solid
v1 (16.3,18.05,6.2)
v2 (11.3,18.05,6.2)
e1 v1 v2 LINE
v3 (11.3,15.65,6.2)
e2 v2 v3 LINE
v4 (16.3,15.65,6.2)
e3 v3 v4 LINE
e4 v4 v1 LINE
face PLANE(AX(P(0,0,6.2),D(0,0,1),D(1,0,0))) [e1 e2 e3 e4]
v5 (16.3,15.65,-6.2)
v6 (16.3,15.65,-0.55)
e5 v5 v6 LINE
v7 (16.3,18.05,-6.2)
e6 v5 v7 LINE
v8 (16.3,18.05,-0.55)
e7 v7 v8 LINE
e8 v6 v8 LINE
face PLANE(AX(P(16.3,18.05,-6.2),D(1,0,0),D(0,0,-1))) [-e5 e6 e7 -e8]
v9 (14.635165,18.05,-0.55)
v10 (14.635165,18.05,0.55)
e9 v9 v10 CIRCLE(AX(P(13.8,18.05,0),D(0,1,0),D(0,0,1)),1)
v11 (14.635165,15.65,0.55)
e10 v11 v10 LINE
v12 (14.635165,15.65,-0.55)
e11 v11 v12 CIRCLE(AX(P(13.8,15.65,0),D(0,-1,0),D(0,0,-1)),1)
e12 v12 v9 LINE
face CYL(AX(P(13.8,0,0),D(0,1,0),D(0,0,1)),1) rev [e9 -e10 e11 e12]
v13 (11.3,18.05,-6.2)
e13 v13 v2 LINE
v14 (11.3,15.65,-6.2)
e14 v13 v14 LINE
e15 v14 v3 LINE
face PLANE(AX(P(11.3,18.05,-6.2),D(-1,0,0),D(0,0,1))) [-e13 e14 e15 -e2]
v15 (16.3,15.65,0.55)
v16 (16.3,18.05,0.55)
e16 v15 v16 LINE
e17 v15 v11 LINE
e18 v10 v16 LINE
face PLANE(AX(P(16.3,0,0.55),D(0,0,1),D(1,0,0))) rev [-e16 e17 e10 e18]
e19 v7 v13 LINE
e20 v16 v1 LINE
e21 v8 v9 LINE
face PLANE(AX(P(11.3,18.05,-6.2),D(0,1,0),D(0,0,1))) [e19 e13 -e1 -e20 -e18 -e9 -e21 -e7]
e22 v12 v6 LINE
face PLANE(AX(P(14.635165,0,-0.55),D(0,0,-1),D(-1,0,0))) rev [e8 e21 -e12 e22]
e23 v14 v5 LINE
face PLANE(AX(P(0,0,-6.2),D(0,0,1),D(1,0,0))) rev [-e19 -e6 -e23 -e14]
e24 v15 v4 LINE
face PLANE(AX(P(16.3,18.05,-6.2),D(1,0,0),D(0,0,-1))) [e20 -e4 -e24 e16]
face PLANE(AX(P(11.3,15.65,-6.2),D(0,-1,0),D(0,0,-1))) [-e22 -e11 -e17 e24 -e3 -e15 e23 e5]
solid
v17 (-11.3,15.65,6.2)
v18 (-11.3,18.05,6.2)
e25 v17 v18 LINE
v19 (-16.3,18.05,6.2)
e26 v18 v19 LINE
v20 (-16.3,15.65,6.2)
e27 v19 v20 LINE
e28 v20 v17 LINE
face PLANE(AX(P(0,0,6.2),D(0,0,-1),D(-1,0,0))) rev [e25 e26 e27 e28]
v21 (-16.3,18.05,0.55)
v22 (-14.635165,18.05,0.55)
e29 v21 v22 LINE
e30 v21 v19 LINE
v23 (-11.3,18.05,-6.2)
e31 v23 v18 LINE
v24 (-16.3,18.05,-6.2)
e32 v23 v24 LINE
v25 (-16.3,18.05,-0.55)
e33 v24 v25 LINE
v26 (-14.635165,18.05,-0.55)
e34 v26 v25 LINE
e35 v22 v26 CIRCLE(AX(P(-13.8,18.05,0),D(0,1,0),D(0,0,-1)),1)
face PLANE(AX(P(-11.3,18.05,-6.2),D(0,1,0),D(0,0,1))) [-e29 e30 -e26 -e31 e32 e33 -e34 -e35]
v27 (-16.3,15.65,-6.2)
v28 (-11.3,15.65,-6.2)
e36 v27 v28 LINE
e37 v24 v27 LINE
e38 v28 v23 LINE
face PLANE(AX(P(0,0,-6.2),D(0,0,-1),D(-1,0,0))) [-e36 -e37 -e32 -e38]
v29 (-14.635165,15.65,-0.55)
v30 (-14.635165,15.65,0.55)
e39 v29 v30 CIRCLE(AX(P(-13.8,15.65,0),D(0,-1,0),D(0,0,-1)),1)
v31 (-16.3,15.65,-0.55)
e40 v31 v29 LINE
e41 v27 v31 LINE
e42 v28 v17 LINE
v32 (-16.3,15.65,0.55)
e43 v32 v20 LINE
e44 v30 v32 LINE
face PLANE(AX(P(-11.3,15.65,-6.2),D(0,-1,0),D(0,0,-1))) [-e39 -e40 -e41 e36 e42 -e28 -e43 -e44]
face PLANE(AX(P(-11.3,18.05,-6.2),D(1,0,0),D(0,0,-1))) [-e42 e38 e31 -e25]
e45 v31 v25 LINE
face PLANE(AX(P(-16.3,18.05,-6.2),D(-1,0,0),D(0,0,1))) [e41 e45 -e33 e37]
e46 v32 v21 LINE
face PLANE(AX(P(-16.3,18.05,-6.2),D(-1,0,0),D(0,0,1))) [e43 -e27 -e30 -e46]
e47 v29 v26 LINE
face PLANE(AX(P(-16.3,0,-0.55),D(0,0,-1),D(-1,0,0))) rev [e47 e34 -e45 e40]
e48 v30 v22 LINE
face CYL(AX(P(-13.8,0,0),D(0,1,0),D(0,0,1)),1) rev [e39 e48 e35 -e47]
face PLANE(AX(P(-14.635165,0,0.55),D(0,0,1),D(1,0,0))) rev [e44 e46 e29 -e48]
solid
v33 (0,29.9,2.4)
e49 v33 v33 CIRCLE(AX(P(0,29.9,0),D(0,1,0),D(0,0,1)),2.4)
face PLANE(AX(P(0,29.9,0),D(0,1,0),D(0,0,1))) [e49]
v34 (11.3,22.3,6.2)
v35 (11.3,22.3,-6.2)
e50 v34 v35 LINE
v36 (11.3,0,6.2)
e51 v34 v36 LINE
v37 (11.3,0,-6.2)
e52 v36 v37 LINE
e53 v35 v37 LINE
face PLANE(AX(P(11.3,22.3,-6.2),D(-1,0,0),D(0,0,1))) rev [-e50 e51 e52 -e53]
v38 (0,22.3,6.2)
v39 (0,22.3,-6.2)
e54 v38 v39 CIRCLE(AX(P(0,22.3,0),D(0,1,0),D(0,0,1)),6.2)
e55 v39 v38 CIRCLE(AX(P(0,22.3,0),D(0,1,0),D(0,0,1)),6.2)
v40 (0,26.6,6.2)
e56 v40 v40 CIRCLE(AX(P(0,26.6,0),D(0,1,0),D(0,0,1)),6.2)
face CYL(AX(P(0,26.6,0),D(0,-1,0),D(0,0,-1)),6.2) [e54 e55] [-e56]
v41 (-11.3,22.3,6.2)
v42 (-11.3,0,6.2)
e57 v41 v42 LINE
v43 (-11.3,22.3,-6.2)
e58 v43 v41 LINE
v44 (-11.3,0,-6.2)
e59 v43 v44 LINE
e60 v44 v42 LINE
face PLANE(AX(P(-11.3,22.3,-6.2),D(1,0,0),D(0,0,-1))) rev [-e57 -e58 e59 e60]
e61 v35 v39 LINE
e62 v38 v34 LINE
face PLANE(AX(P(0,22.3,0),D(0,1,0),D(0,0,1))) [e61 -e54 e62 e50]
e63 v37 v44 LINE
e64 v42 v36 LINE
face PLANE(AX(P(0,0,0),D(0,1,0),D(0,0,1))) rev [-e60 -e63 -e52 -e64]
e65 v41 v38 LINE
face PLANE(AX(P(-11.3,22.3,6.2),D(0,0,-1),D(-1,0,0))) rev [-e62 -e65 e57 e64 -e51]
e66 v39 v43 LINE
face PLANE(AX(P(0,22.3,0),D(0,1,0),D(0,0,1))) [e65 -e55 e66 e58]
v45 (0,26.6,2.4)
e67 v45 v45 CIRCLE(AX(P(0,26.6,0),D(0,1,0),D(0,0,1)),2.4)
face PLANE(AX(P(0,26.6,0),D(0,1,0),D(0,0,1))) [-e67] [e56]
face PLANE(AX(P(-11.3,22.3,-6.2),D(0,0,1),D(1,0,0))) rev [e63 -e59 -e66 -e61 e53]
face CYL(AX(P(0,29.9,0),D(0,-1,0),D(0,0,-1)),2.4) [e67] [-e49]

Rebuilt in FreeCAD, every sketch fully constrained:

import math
import FreeCAD as App
import Part
import Sketcher

doc = App.newDocument("Part")
body = doc.addObject("PartDesign::Body", "Body")

sketch1 = doc.addObject("Sketcher::SketchObject", "Sketch")
body.addObject(sketch1)
sketch1.AttachmentSupport = (doc.XZ_Plane, [""])
sketch1.MapMode = "FlatFace"
sketch1.addGeometry([
    Part.LineSegment(App.Vector(-11, -6, 0), App.Vector(-11, 6, 0)),
    Part.LineSegment(App.Vector(-11, 6, 0), App.Vector(11, 6, 0)),
    Part.LineSegment(App.Vector(11, 6, 0), App.Vector(11, -6, 0)),
    Part.LineSegment(App.Vector(11, -6, 0), App.Vector(-11, -6, 0)),
], False)
sketch1.addConstraint([
    Sketcher.Constraint("Coincident", 0, 2, 1, 1),
    Sketcher.Constraint("Coincident", 1, 2, 2, 1),
    Sketcher.Constraint("Coincident", 2, 2, 3, 1),
    Sketcher.Constraint("Coincident", 3, 2, 0, 1),
    Sketcher.Constraint("Vertical", 0),
    Sketcher.Constraint("Horizontal", 1),
    Sketcher.Constraint("Vertical", 2),
    Sketcher.Constraint("Horizontal", 3),
    Sketcher.Constraint("Symmetric", 0, 2, 2, 2, -1, 1),
    Sketcher.Constraint("DistanceX", 1, 1, 1, 2, 22.6),
    Sketcher.Constraint("DistanceY", 0, 1, 0, 2, 12.4),
])
pad1 = doc.addObject("PartDesign::Pad", "Pad")
body.addObject(pad1)
pad1.Profile = sketch1
pad1.Length = 22.3
pad1.Reversed = True

sketch2 = doc.addObject("Sketcher::SketchObject", "Sketch001")
body.addObject(sketch2)
sketch2.AttachmentSupport = (doc.XZ_Plane, [""])
sketch2.MapMode = "FlatFace"
sketch2.AttachmentOffset = App.Placement(App.Vector(0, 0, -22.3), App.Rotation())
sketch2.addGeometry(Part.Circle(App.Vector(0, 0, 0), App.Vector(0, 0, 1), 6), False)
sketch2.addConstraint([
    Sketcher.Constraint("Coincident", 0, 3, -1, 1),
    Sketcher.Constraint("Diameter", 0, 12.4),
])
pad2 = doc.addObject("PartDesign::Pad", "Pad001")
body.addObject(pad2)
pad2.Profile = sketch2
pad2.Length = 4.3
pad2.Reversed = True

sketch3 = doc.addObject("Sketcher::SketchObject", "Sketch002")
body.addObject(sketch3)
sketch3.AttachmentSupport = (doc.XZ_Plane, [""])
sketch3.MapMode = "FlatFace"
sketch3.AttachmentOffset = App.Placement(App.Vector(0, 0, -26.6), App.Rotation())
sketch3.addGeometry(Part.Circle(App.Vector(0, 0, 0), App.Vector(0, 0, 1), 2.4), False)
sketch3.addConstraint([
    Sketcher.Constraint("Coincident", 0, 3, -1, 1),
    Sketcher.Constraint("Diameter", 0, 4.8),
])
pad3 = doc.addObject("PartDesign::Pad", "Pad002")
body.addObject(pad3)
pad3.Profile = sketch3
pad3.Length = 3.3
pad3.Reversed = True
body2 = doc.addObject("PartDesign::Body", "Body001")

sketch4 = doc.addObject("Sketcher::SketchObject", "Sketch003")
body2.addObject(sketch4)
sketch4.AttachmentSupport = (doc.getObject("XY_Plane001"), [""])
sketch4.MapMode = "FlatFace"
sketch4.AttachmentOffset = App.Placement(App.Vector(0, 0, 6.2), App.Rotation())
sketch4.addGeometry([
    Part.LineSegment(App.Vector(11.3, 18.1, 0), App.Vector(11.3, 15.7, 0)),
    Part.LineSegment(App.Vector(11.3, 15.7, 0), App.Vector(16.3, 15.7, 0)),
    Part.LineSegment(App.Vector(16.3, 15.7, 0), App.Vector(16.3, 18.1, 0)),
    Part.LineSegment(App.Vector(16.3, 18.1, 0), App.Vector(11.3, 18.1, 0)),
], False)
sketch4.addConstraint([
    Sketcher.Constraint("Coincident", 0, 2, 1, 1),
    Sketcher.Constraint("Coincident", 1, 2, 2, 1),
    Sketcher.Constraint("Coincident", 2, 2, 3, 1),
    Sketcher.Constraint("Coincident", 3, 2, 0, 1),
    Sketcher.Constraint("Vertical", 0),
    Sketcher.Constraint("Horizontal", 1),
    Sketcher.Constraint("Vertical", 2),
    Sketcher.Constraint("Horizontal", 3),
    Sketcher.Constraint("DistanceX", 1, 1, 1, 2, 5.0),
    Sketcher.Constraint("DistanceY", 0, 2, 0, 1, 2.4),
    Sketcher.Constraint("DistanceX", -1, 1, 0, 2, 11.3),
    Sketcher.Constraint("DistanceY", -1, 1, 0, 2, 15.65),
])
pad4 = doc.addObject("PartDesign::Pad", "Pad003")
body2.addObject(pad4)
pad4.Profile = sketch4
pad4.Length = 12.4
pad4.Reversed = True
body3 = doc.addObject("PartDesign::Body", "Body002")

sketch5 = doc.addObject("Sketcher::SketchObject", "Sketch004")
body3.addObject(sketch5)
sketch5.AttachmentSupport = (doc.getObject("XY_Plane002"), [""])
sketch5.MapMode = "FlatFace"
sketch5.AttachmentOffset = App.Placement(App.Vector(0, 0, 6.2), App.Rotation())
sketch5.addGeometry([
    Part.LineSegment(App.Vector(-16.3, 18.1, 0), App.Vector(-16.3, 15.7, 0)),
    Part.LineSegment(App.Vector(-16.3, 15.7, 0), App.Vector(-11.3, 15.7, 0)),
    Part.LineSegment(App.Vector(-11.3, 15.7, 0), App.Vector(-11.3, 18.1, 0)),
    Part.LineSegment(App.Vector(-11.3, 18.1, 0), App.Vector(-16.3, 18.1, 0)),
], False)
sketch5.addConstraint([
    Sketcher.Constraint("Coincident", 0, 2, 1, 1),
    Sketcher.Constraint("Coincident", 1, 2, 2, 1),
    Sketcher.Constraint("Coincident", 2, 2, 3, 1),
    Sketcher.Constraint("Coincident", 3, 2, 0, 1),
    Sketcher.Constraint("Vertical", 0),
    Sketcher.Constraint("Horizontal", 1),
    Sketcher.Constraint("Vertical", 2),
    Sketcher.Constraint("Horizontal", 3),
    Sketcher.Constraint("DistanceX", 1, 1, 1, 2, 5.0),
    Sketcher.Constraint("DistanceY", 0, 2, 0, 1, 2.4),
    Sketcher.Constraint("DistanceX", 0, 2, -1, 1, 16.3),
    Sketcher.Constraint("DistanceY", -1, 1, 0, 2, 15.65),
])
pad5 = doc.addObject("PartDesign::Pad", "Pad004")
body3.addObject(pad5)
pad5.Profile = sketch5
pad5.Length = 12.4
pad5.Reversed = True
body4 = doc.addObject("PartDesign::Body", "Body003")
body4.AllowCompound = True

sketch6 = doc.addObject("Sketcher::SketchObject", "Sketch005")
body4.addObject(sketch6)
sketch6.AttachmentSupport = (doc.getObject("XZ_Plane003"), [""])
sketch6.MapMode = "FlatFace"
sketch6.AttachmentOffset = App.Placement(App.Vector(0, 0, -18.05), App.Rotation())
sketch6.addGeometry([
    Part.LineSegment(App.Vector(16.3, -0.6, 0), App.Vector(14.6, -0.6, 0)),
    Part.ArcOfCircle(Part.Circle(App.Vector(13.8, 0, 0), App.Vector(0, 0, 1), 1), math.radians(33), math.radians(327)),
    Part.LineSegment(App.Vector(14.6, 0.6, 0), App.Vector(16.3, 0.6, 0)),
    Part.LineSegment(App.Vector(16.3, 0.6, 0), App.Vector(16.3, -0.6, 0)),
    Part.LineSegment(App.Vector(-16.3, 0.6, 0), App.Vector(-14.6, 0.6, 0)),
    Part.ArcOfCircle(Part.Circle(App.Vector(-13.8, 0, 0), App.Vector(0, 0, 1), 1), math.radians(-147), math.radians(147)),
    Part.LineSegment(App.Vector(-14.6, -0.6, 0), App.Vector(-16.3, -0.6, 0)),
    Part.LineSegment(App.Vector(-16.3, -0.6, 0), App.Vector(-16.3, 0.6, 0)),
], False)
sketch6.addConstraint([
    Sketcher.Constraint("Coincident", 0, 2, 1, 2),
    Sketcher.Constraint("Coincident", 1, 1, 2, 1),
    Sketcher.Constraint("Coincident", 2, 2, 3, 1),
    Sketcher.Constraint("Coincident", 3, 2, 0, 1),
    Sketcher.Constraint("Coincident", 4, 2, 5, 2),
    Sketcher.Constraint("Coincident", 5, 1, 6, 1),
    Sketcher.Constraint("Coincident", 6, 2, 7, 1),
    Sketcher.Constraint("Coincident", 7, 2, 4, 1),
    Sketcher.Constraint("Horizontal", 0),
    Sketcher.Constraint("Horizontal", 2),
    Sketcher.Constraint("Vertical", 3),
    Sketcher.Constraint("Horizontal", 4),
    Sketcher.Constraint("Horizontal", 6),
    Sketcher.Constraint("Vertical", 7),
    Sketcher.Constraint("Equal", 1, 5),
    Sketcher.Constraint("Symmetric", 1, 3, 5, 3, -1, 1),
    Sketcher.Constraint("Symmetric", 2, 2, 6, 2, -1, 1),
    Sketcher.Constraint("Symmetric", 1, 1, 4, 2, -2),
    Sketcher.Constraint("Horizontal", 3, 2, 5, 1),
    Sketcher.Constraint("Radius", 1, 1.0),
    Sketcher.Constraint("DistanceY", 3, 2, 3, 1, 1.1),
    Sketcher.Constraint("DistanceX", -1, 1, 1, 3, 13.8),
    Sketcher.Constraint("DistanceX", -1, 1, 2, 2, 16.3),
])
pad6 = doc.addObject("PartDesign::Pad", "Pad005")
body4.addObject(pad6)
pad6.Profile = sketch6
pad6.Length = 26.098456
doc.recompute()

body5 = doc.addObject("PartDesign::Body", "Body004")
body5.BaseFeature = body4
boolean = doc.addObject("PartDesign::Boolean", "Boolean")
body2.addObject(boolean)
boolean.Type = "Cut"
boolean.addObjects([body5])
doc.recompute()

boolean2 = doc.addObject("PartDesign::Boolean", "Boolean001")
body3.addObject(boolean2)
boolean2.Type = "Cut"
boolean2.addObjects([body4])

doc.recompute()
